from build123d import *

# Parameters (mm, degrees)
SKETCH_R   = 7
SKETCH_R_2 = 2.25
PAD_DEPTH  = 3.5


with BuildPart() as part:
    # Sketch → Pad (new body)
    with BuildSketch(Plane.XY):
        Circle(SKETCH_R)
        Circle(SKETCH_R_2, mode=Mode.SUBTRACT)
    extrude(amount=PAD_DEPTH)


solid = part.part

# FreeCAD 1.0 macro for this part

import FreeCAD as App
import Part
import Sketcher

V = App.Vector

doc = App.newDocument("Part")
body = doc.addObject("PartDesign::Body", "Body")

# Sketch on XY plane
sketch1 = doc.addObject("Sketcher::SketchObject", "Sketch")
body.addObject(sketch1)
sketch1.AttachmentSupport = (doc.XY_Plane, [""])
sketch1.MapMode = "FlatFace"
sketch1.addGeometry([
    Part.Circle(V(0, 0, 0), V(0, 0, 1), 7),
    Part.Circle(V(0, 0, 0), V(0, 0, 1), 2.2),
], False)
sketch1.addConstraint([
    Sketcher.Constraint("Coincident", 0, 3, -1, 1),
    Sketcher.Constraint("Coincident", 1, 3, -1, 1),
    Sketcher.Constraint("Diameter", 0, 14.0),
    Sketcher.Constraint("Diameter", 1, 4.5),
])
pad1 = doc.addObject("PartDesign::Pad", "Pad")
body.addObject(pad1)
pad1.Profile = sketch1
pad1.Length = 3.5

doc.recompute()
